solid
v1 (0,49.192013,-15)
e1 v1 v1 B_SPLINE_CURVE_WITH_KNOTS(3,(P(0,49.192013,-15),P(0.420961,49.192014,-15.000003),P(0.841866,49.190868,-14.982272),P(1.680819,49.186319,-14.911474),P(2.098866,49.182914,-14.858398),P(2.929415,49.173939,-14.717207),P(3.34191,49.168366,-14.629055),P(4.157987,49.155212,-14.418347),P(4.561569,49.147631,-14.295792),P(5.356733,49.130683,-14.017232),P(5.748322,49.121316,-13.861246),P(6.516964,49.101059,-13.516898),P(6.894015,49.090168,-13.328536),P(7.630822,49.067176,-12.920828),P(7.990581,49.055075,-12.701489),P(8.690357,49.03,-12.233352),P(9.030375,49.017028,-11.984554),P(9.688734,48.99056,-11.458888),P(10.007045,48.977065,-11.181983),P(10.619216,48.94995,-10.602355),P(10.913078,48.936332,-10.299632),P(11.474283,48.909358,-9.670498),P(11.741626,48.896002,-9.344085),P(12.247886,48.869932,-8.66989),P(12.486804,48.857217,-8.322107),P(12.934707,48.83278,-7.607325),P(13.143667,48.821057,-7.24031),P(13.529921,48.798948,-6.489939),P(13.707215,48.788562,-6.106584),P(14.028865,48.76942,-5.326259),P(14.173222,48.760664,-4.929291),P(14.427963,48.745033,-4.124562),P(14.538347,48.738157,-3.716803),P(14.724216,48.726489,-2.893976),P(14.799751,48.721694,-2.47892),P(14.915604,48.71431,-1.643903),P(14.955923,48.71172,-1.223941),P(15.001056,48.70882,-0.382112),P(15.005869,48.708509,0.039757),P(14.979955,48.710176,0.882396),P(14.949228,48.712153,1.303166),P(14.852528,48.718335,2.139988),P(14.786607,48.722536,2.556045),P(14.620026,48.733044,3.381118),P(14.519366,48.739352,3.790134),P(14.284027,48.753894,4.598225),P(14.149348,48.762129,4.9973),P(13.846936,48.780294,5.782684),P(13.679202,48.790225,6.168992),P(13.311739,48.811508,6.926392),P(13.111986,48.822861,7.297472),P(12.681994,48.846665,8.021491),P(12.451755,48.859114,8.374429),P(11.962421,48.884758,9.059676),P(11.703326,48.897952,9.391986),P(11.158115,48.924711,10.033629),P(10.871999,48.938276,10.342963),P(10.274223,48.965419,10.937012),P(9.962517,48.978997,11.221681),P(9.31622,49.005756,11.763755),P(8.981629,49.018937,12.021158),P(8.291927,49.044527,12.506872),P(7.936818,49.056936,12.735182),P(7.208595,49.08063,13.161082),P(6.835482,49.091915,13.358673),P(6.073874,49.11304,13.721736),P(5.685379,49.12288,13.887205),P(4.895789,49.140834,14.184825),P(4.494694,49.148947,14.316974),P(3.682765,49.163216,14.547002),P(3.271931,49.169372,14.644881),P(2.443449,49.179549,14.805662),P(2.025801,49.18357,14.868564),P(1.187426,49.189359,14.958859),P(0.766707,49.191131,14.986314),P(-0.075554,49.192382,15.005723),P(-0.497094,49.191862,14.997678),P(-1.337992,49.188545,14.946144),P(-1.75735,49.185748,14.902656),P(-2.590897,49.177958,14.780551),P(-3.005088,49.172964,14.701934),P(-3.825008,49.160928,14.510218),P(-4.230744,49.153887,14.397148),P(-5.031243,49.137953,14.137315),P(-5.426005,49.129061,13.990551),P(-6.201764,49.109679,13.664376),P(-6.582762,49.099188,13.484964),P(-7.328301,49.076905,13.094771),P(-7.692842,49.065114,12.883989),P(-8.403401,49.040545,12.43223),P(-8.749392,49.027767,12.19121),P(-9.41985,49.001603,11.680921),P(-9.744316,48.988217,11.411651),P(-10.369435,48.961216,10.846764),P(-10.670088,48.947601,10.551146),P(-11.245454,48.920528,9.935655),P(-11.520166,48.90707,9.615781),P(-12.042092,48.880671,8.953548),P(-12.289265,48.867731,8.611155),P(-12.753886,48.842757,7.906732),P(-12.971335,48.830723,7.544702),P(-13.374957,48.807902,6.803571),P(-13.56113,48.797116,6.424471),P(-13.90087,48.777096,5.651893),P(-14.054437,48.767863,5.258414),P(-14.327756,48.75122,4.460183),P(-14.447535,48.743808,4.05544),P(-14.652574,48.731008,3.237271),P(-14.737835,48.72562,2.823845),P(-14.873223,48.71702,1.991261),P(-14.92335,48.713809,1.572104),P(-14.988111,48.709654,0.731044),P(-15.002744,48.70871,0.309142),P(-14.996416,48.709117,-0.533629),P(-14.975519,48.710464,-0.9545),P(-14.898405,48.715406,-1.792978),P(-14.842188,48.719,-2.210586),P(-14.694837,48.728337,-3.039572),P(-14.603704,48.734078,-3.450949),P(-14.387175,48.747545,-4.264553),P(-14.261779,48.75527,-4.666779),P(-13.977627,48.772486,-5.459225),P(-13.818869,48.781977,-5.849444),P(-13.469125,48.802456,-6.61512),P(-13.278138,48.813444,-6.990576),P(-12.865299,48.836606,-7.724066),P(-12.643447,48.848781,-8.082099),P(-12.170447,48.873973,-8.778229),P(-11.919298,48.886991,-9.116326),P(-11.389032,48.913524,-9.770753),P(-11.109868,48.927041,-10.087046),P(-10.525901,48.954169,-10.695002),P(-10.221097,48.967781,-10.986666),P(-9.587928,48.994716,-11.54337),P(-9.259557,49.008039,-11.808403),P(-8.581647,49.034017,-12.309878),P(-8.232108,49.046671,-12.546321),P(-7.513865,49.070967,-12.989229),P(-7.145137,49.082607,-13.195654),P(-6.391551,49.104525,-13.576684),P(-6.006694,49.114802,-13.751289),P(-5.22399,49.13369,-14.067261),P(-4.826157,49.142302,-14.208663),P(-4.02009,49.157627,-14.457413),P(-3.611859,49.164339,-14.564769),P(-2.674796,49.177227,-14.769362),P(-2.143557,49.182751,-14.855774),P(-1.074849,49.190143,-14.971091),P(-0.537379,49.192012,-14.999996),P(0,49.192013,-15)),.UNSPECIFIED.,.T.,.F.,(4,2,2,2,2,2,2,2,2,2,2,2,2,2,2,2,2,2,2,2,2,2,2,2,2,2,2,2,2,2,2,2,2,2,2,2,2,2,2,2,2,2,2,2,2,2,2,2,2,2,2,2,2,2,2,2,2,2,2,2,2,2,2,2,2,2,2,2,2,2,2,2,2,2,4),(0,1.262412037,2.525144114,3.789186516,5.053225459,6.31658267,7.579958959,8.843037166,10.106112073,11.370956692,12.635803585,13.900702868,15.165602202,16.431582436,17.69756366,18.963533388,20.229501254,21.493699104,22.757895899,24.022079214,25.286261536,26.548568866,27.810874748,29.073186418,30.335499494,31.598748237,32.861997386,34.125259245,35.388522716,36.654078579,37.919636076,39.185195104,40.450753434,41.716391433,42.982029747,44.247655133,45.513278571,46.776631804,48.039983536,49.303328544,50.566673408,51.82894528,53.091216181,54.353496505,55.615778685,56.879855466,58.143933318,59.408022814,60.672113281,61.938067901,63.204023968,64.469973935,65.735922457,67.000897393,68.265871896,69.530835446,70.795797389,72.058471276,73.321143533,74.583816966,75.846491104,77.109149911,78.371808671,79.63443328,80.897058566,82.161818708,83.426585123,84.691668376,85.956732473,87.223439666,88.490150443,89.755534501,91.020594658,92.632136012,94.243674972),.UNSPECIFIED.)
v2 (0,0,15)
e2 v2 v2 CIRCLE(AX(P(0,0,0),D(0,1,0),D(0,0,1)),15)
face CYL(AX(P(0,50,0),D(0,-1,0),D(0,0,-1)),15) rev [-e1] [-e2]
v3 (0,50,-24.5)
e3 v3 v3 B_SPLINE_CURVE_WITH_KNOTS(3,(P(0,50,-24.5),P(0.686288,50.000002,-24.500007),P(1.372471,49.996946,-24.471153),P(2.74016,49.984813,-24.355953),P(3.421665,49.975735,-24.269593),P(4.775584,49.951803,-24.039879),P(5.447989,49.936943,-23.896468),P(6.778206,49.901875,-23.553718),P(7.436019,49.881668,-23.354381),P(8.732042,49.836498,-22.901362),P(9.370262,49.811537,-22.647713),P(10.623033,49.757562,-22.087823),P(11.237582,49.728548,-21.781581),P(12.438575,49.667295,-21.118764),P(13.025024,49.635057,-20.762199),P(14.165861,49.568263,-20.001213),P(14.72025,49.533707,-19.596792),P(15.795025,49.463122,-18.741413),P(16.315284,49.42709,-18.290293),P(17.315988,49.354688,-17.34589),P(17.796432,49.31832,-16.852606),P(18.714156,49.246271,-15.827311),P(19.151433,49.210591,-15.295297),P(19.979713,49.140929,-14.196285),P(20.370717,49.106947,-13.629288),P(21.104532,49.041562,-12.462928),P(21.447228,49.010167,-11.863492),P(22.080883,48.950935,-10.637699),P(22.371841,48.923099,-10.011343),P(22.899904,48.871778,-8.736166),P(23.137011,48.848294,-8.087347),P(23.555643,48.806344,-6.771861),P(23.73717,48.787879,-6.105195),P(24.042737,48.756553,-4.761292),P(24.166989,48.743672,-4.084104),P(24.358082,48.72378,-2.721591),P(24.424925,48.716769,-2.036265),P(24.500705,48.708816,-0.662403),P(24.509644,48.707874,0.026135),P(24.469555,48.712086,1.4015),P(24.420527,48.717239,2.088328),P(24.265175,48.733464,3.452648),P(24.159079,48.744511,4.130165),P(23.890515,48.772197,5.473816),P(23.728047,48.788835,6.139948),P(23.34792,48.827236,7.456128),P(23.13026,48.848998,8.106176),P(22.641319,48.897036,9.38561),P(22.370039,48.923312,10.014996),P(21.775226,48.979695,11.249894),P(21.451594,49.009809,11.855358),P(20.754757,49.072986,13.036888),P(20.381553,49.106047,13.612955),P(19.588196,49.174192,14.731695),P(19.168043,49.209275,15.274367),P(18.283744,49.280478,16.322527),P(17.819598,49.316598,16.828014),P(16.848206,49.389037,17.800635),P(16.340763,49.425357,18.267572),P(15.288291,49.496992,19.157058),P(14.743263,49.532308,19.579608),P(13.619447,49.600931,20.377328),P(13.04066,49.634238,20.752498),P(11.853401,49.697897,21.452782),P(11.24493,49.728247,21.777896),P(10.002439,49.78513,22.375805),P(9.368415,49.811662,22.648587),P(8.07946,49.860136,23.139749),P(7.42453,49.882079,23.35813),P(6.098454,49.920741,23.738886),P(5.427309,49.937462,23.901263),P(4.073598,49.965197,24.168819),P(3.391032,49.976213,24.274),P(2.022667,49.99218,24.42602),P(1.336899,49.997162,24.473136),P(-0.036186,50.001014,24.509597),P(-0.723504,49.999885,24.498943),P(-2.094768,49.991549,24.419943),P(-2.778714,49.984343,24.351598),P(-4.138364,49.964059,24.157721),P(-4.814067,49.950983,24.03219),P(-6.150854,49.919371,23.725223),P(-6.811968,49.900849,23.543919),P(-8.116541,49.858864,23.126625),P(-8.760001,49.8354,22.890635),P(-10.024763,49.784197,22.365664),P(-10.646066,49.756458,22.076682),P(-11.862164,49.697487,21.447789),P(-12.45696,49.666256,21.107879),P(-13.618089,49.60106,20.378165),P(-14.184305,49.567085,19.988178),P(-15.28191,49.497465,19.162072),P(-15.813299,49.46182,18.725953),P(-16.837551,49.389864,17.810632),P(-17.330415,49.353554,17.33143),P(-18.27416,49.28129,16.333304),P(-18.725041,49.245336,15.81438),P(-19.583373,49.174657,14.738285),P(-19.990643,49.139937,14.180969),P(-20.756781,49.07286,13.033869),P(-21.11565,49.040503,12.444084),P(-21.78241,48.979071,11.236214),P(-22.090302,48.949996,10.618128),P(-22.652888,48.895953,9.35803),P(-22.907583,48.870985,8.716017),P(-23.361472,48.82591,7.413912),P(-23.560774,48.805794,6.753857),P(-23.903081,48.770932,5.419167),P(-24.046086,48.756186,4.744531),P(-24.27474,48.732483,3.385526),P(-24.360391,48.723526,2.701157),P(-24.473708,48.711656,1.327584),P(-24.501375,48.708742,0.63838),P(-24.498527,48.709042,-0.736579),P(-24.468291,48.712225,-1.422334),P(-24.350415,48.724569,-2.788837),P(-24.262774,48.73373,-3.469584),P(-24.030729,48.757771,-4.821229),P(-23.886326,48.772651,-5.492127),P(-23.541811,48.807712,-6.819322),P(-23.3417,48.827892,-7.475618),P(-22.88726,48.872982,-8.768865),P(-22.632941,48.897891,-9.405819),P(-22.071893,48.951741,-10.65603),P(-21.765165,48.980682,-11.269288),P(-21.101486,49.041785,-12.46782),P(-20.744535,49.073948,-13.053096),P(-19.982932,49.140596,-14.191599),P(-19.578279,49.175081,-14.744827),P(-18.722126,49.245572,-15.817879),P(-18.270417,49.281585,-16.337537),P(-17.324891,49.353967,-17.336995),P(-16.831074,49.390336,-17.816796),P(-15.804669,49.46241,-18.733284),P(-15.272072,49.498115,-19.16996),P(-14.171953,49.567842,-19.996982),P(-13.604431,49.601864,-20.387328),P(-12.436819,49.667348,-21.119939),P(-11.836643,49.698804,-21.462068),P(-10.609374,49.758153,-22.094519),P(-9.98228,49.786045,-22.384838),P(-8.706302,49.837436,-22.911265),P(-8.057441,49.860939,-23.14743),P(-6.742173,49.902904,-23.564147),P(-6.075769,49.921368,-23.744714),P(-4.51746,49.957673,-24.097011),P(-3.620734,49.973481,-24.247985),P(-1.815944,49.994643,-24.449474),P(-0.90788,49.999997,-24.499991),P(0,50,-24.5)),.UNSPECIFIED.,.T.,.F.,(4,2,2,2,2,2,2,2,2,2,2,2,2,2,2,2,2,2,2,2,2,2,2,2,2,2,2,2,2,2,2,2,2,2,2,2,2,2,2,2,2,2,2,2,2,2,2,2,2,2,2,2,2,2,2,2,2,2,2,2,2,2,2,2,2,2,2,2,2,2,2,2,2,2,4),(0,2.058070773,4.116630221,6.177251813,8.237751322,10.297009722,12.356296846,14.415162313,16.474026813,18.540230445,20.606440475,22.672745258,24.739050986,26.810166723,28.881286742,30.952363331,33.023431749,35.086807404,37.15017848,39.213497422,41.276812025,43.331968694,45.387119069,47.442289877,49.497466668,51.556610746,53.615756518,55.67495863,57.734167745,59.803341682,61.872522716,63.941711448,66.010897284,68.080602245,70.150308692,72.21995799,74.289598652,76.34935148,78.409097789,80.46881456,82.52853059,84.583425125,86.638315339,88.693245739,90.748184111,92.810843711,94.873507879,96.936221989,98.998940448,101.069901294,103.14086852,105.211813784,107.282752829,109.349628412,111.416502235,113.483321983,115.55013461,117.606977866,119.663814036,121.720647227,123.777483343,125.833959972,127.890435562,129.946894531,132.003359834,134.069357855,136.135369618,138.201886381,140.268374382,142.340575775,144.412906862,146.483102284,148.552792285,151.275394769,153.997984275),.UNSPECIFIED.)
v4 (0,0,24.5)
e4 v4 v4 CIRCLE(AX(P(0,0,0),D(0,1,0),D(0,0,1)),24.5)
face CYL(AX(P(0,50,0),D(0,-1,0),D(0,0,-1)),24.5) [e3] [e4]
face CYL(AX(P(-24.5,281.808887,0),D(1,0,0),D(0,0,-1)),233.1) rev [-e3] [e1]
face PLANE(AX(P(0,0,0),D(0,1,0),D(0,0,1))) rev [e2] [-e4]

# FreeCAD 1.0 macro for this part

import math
import FreeCAD as App
import Part
import Sketcher

doc = App.newDocument("Part")
body = doc.addObject("PartDesign::Body", "Body")

sketch1 = doc.addObject("Sketcher::SketchObject", "Sketch")
body.addObject(sketch1)
sketch1.AttachmentSupport = (doc.XZ_Plane, [""])
sketch1.MapMode = "FlatFace"
sketch1.addGeometry(Part.Circle(App.Vector(0, 0, 0), App.Vector(0, 0, 1), 24.5), False)
sketch1.addGeometry(Part.Circle(App.Vector(0, 0, 0), App.Vector(0, 0, 1), 15), False)
sketch1.addConstraint(Sketcher.Constraint("Coincident", 0, 3, -1, 1))
sketch1.addConstraint(Sketcher.Constraint("Coincident", 1, 3, -1, 1))
sketch1.addConstraint(Sketcher.Constraint("Diameter", 0, 49.0))
sketch1.addConstraint(Sketcher.Constraint("Diameter", 1, 30.0))
pad1 = doc.addObject("PartDesign::Pad", "Pad")
body.addObject(pad1)
pad1.Profile = sketch1
pad1.Length = 50
pad1.Reversed = True

sketch2 = doc.addObject("Sketcher::SketchObject", "Sketch001")
body.addObject(sketch2)
sketch2.AttachmentSupport = (doc.YZ_Plane, [""])
sketch2.MapMode = "FlatFace"
sketch2.addGeometry(Part.LineSegment(App.Vector(50, -24.5, 0), App.Vector(50, 24.5, 0)), False)
sketch2.addGeometry(Part.ArcOfCircle(Part.Circle(App.Vector(281.808887, 0, 0), App.Vector(0, 0, 1), 233.1), math.radians(173.966778), math.radians(186.033222)), False)
sketch2.addConstraint(Sketcher.Constraint("Coincident", 0, 1, 1, 2))
sketch2.addConstraint(Sketcher.Constraint("Coincident", 1, 1, 0, 2))
sketch2.addConstraint(Sketcher.Constraint("Vertical", 0))
sketch2.addConstraint(Sketcher.Constraint("PointOnObject", 1, 3, -1))
sketch2.addConstraint(Sketcher.Constraint("Radius", 1, 233.1))
sketch2.addConstraint(Sketcher.Constraint("DistanceY", 0, 1, 0, 2, 49.0))
sketch2.addConstraint(Sketcher.Constraint("DistanceX", -1, 1, 0, 1, 50.0))
pocket1 = doc.addObject("PartDesign::Pocket", "Pocket")
body.addObject(pocket1)
pocket1.Profile = sketch2
pocket1.Type = "ThroughAll"
pocket1.Midplane = True

doc.recompute()
